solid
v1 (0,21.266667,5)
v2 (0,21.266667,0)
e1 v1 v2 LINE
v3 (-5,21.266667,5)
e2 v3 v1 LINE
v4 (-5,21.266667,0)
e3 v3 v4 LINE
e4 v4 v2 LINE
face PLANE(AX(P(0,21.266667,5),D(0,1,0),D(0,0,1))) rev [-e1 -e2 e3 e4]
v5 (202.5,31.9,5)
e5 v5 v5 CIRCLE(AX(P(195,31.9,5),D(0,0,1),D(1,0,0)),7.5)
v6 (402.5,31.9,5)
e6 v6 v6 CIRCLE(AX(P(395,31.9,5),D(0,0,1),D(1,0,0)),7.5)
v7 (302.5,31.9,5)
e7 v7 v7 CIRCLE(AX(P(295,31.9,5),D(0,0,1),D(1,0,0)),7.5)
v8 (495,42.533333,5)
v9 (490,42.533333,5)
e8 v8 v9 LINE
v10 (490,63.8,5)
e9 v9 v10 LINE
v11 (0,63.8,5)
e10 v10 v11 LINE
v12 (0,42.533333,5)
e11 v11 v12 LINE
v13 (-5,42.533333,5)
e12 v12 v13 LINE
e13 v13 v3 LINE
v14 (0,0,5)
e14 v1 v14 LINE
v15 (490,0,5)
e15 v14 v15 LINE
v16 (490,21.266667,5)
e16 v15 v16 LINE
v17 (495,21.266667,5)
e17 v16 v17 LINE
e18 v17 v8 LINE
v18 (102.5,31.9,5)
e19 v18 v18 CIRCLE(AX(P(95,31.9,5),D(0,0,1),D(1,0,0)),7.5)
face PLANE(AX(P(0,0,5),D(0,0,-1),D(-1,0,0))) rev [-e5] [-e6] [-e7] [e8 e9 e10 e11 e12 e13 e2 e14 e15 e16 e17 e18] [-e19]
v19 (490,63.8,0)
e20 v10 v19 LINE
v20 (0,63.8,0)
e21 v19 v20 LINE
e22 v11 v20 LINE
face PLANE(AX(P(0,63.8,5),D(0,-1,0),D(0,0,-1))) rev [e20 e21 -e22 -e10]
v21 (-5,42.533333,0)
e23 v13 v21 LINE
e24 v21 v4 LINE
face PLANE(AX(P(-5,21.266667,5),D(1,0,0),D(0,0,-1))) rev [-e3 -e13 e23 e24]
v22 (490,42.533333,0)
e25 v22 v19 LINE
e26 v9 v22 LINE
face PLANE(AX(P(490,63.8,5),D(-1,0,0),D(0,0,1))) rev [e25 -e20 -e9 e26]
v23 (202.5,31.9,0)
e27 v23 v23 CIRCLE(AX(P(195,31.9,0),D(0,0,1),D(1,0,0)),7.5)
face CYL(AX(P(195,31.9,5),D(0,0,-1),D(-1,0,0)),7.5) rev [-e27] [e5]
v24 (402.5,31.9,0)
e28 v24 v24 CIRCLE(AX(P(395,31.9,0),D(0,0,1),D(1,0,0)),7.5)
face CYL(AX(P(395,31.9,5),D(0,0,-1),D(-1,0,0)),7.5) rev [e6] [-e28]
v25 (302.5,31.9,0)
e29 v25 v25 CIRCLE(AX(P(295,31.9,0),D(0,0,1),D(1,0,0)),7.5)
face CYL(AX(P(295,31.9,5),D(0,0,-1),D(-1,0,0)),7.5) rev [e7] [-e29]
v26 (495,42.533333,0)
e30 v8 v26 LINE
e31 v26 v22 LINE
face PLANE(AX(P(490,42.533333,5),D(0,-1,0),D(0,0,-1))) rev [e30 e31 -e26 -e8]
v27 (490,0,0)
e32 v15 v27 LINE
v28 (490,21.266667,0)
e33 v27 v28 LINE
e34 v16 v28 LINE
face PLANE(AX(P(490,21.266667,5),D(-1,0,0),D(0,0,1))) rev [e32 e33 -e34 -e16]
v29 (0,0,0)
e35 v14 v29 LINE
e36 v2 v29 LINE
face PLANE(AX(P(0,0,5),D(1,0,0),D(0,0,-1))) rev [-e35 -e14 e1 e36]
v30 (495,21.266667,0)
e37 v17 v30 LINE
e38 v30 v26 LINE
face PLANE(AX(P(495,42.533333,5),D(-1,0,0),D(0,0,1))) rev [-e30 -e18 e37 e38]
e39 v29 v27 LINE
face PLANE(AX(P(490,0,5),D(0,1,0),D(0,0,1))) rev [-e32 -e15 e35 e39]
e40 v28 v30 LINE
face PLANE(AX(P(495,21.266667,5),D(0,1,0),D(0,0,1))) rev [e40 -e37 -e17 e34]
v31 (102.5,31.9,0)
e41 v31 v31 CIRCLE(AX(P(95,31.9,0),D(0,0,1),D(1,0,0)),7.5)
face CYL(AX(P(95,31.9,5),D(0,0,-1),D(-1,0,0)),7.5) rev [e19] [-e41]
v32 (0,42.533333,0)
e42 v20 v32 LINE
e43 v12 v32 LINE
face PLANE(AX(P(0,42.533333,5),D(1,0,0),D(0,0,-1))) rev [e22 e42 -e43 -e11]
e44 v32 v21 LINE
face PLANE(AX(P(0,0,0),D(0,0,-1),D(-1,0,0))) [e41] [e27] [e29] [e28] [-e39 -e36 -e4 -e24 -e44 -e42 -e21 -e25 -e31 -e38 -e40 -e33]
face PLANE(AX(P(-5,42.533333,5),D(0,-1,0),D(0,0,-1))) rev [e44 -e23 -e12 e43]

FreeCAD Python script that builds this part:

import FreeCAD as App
import Part
import Sketcher

V = App.Vector

doc = App.newDocument("Part")
body = doc.addObject("PartDesign::Body", "Body")

sketch1 = body.newObject("Sketcher::SketchObject", "Sketch")
sketch1.AttachmentSupport = (doc.getObject("XY_Plane"), [""])
sketch1.MapMode = "FlatFace"
sketch1.addGeometry(Part.LineSegment(V(0, 21.266667, 0), V(0, 0, 0)), False)
sketch1.addGeometry(Part.LineSegment(V(0, 0, 0), V(490, 0, 0)), False)
sketch1.addGeometry(Part.LineSegment(V(490, 0, 0), V(490, 21.266667, 0)), False)
sketch1.addGeometry(Part.LineSegment(V(490, 21.266667, 0), V(495, 21.266667, 0)), False)
sketch1.addGeometry(Part.LineSegment(V(495, 21.266667, 0), V(495, 42.533333, 0)), False)
sketch1.addGeometry(Part.LineSegment(V(495, 42.533333, 0), V(490, 42.533333, 0)), False)
sketch1.addGeometry(Part.LineSegment(V(490, 42.533333, 0), V(490, 63.8, 0)), False)
sketch1.addGeometry(Part.LineSegment(V(490, 63.8, 0), V(0, 63.8, 0)), False)
sketch1.addGeometry(Part.LineSegment(V(0, 63.8, 0), V(0, 42.533333, 0)), False)
sketch1.addGeometry(Part.LineSegment(V(0, 42.533333, 0), V(-5, 42.533333, 0)), False)
sketch1.addGeometry(Part.LineSegment(V(-5, 42.533333, 0), V(-5, 21.266667, 0)), False)
sketch1.addGeometry(Part.LineSegment(V(-5, 21.266667, 0), V(0, 21.266667, 0)), False)
sketch1.addGeometry(Part.Circle(V(395, 31.9, 0), V(0, 0, 1), 7.5), False)
sketch1.addGeometry(Part.Circle(V(295, 31.9, 0), V(0, 0, 1), 7.5), False)
sketch1.addGeometry(Part.Circle(V(195, 31.9, 0), V(0, 0, 1), 7.5), False)
sketch1.addGeometry(Part.Circle(V(95, 31.9, 0), V(0, 0, 1), 7.5), False)
sketch1.addConstraint(Sketcher.Constraint("Coincident", 0, 2, 1, 1))
sketch1.addConstraint(Sketcher.Constraint("Coincident", 1, 2, 2, 1))
sketch1.addConstraint(Sketcher.Constraint("Coincident", 2, 2, 3, 1))
sketch1.addConstraint(Sketcher.Constraint("Coincident", 3, 2, 4, 1))
sketch1.addConstraint(Sketcher.Constraint("Coincident", 4, 2, 5, 1))
sketch1.addConstraint(Sketcher.Constraint("Coincident", 5, 2, 6, 1))
sketch1.addConstraint(Sketcher.Constraint("Coincident", 6, 2, 7, 1))
sketch1.addConstraint(Sketcher.Constraint("Coincident", 7, 2, 8, 1))
sketch1.addConstraint(Sketcher.Constraint("Coincident", 8, 2, 9, 1))
sketch1.addConstraint(Sketcher.Constraint("Coincident", 9, 2, 10, 1))
sketch1.addConstraint(Sketcher.Constraint("Coincident", 10, 2, 11, 1))
sketch1.addConstraint(Sketcher.Constraint("Coincident", 11, 2, 0, 1))
sketch1.addConstraint(Sketcher.Constraint("Vertical", 0))
sketch1.addConstraint(Sketcher.Constraint("Horizontal", 1))
sketch1.addConstraint(Sketcher.Constraint("Vertical", 2))
sketch1.addConstraint(Sketcher.Constraint("Horizontal", 3))
sketch1.addConstraint(Sketcher.Constraint("Vertical", 4))
sketch1.addConstraint(Sketcher.Constraint("Horizontal", 5))
sketch1.addConstraint(Sketcher.Constraint("Vertical", 6))
sketch1.addConstraint(Sketcher.Constraint("Horizontal", 7))
sketch1.addConstraint(Sketcher.Constraint("Vertical", 8))
sketch1.addConstraint(Sketcher.Constraint("Horizontal", 9))
sketch1.addConstraint(Sketcher.Constraint("Vertical", 10))
sketch1.addConstraint(Sketcher.Constraint("Horizontal", 11))
sketch1.addConstraint(Sketcher.Constraint("Coincident", 0, 2, -1, 1))
sketch1.addConstraint(Sketcher.Constraint("Equal", 12, 13))
sketch1.addConstraint(Sketcher.Constraint("Equal", 13, 14))
sketch1.addConstraint(Sketcher.Constraint("Equal", 14, 15))
sketch1.addConstraint(Sketcher.Constraint("PointOnObject", 7, 2, -2))
sketch1.addConstraint(Sketcher.Constraint("Horizontal", 12, 3, 13, 3))
sketch1.addConstraint(Sketcher.Constraint("Horizontal", 13, 3, 14, 3))
sketch1.addConstraint(Sketcher.Constraint("Horizontal", 14, 3, 15, 3))
sketch1.addConstraint(Sketcher.Constraint("Horizontal", 5, 2, 8, 2))
sketch1.addConstraint(Sketcher.Constraint("Horizontal", 3, 2, 10, 2))
sketch1.addConstraint(Sketcher.Constraint("Vertical", 2, 2, 5, 2))
sketch1.addConstraint(Sketcher.Constraint("Equal", 5, 9))
sketch1.addConstraint(Sketcher.Constraint("Equal", 2, 4))
sketch1.addConstraint(Sketcher.Constraint("Equal", 4, 6))
sketch1.addConstraint(Sketcher.Constraint("Diameter", 12, 15.0))
sketch1.addConstraint(Sketcher.Constraint("DistanceX", 1, 1, 1, 2, 490.0))
sketch1.addConstraint(Sketcher.Constraint("DistanceX", 3, 1, 3, 2, 5.0))
sketch1.addConstraint(Sketcher.Constraint("DistanceX", -1, 1, 12, 3, 395.0))
sketch1.addConstraint(Sketcher.Constraint("DistanceX", -1, 1, 13, 3, 295.0))
sketch1.addConstraint(Sketcher.Constraint("DistanceX", -1, 1, 14, 3, 195.0))
sketch1.addConstraint(Sketcher.Constraint("DistanceX", -1, 1, 15, 3, 95.0))
sketch1.addConstraint(Sketcher.Constraint("DistanceY", -1, 1, 12, 3, 31.9))
sketch1.addConstraint(Sketcher.Constraint("DistanceY", -1, 1, 6, 2, 63.8))
pad1 = body.newObject("PartDesign::Pad", "Pad")
pad1.Profile = sketch1
pad1.Length = 5

doc.recompute()
